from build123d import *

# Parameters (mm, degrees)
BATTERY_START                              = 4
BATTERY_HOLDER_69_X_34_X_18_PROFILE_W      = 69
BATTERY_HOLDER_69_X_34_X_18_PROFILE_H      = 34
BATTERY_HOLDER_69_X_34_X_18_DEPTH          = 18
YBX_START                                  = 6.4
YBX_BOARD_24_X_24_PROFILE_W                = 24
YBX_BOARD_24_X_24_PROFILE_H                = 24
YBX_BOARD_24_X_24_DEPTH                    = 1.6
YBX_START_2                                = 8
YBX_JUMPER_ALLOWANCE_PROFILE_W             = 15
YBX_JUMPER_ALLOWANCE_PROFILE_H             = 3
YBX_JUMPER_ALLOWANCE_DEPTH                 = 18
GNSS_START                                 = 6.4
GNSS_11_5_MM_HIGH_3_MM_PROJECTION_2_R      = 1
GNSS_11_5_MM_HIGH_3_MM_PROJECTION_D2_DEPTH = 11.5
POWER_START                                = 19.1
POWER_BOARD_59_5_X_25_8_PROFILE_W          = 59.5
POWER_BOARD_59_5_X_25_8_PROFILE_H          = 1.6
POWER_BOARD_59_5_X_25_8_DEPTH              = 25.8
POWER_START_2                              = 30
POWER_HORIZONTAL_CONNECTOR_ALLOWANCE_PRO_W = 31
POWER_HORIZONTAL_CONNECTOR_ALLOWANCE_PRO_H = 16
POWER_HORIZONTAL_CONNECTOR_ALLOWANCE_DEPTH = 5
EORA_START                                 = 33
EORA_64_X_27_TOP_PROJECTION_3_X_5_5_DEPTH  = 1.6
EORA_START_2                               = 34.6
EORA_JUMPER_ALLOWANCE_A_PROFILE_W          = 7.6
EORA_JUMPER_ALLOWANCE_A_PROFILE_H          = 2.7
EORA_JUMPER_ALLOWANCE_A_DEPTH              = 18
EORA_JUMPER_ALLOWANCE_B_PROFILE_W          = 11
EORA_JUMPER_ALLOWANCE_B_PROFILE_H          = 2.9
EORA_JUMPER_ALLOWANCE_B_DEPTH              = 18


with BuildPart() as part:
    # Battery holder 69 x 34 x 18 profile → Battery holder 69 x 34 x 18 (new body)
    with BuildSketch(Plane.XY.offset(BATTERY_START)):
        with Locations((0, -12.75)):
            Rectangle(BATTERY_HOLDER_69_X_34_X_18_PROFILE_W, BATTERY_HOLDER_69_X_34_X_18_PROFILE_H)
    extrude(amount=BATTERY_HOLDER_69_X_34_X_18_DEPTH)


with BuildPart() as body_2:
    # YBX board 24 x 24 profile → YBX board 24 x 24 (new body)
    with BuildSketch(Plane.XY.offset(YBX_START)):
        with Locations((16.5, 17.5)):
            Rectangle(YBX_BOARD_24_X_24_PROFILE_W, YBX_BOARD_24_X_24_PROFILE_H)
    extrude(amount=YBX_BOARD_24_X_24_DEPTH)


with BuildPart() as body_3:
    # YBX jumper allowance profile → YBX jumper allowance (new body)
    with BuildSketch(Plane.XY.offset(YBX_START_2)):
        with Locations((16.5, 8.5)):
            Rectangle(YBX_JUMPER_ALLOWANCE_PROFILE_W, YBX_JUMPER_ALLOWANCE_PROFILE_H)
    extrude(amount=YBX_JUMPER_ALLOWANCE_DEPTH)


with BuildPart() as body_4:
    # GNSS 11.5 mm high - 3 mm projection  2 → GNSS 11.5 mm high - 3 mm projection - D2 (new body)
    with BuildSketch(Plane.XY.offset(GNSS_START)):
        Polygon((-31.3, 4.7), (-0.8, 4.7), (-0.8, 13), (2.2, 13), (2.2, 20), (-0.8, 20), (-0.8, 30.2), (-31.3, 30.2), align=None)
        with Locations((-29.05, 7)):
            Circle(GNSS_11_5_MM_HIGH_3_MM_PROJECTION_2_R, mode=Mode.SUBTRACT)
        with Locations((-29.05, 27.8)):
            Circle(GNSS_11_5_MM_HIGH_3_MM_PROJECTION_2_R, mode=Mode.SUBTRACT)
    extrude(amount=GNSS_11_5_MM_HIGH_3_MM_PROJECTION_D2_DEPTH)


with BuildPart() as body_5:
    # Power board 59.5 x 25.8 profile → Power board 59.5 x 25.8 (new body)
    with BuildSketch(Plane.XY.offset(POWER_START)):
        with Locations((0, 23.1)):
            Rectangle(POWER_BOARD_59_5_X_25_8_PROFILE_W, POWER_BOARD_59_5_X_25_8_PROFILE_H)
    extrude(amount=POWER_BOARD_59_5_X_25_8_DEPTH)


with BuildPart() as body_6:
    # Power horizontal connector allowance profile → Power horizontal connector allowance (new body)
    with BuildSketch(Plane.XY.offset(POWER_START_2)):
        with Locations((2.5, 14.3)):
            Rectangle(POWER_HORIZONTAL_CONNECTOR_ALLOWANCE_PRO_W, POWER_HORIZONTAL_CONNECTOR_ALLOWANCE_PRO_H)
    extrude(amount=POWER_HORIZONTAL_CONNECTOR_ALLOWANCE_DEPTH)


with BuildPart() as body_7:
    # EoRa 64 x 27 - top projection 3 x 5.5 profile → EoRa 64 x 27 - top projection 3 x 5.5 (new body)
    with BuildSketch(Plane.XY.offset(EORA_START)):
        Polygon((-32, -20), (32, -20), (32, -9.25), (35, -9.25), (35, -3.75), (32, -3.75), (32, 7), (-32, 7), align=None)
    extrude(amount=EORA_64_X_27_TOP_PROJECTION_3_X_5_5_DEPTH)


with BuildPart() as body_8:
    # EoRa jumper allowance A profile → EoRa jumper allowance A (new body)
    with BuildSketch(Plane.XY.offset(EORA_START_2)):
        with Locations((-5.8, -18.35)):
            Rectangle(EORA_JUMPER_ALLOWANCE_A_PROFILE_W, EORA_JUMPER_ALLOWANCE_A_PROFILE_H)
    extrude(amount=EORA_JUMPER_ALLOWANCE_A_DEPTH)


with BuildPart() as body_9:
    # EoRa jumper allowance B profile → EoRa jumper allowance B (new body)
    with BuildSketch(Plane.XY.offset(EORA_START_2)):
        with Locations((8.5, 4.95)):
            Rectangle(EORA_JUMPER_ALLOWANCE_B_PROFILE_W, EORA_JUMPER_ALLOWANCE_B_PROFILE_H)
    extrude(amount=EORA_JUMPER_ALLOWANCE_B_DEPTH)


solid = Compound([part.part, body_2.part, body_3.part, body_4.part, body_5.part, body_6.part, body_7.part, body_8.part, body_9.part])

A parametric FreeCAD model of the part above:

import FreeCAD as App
import Part
import Sketcher

doc = App.newDocument("Part")
body = doc.addObject("PartDesign::Body", "Body")

# Sketch on XY plane
sketch1 = doc.addObject("Sketcher::SketchObject", "Sketch")
body.addObject(sketch1)
sketch1.AttachmentSupport = (doc.XY_Plane, [""])
sketch1.MapMode = "FlatFace"
sketch1.AttachmentOffset = App.Placement(App.Vector(0, 0, 4), App.Rotation())
sketch1.addGeometry([
    Part.LineSegment(App.Vector(-34, 4, 0), App.Vector(-34, -30, 0)),
    Part.LineSegment(App.Vector(-34, -30, 0), App.Vector(34, -30, 0)),
    Part.LineSegment(App.Vector(34, -30, 0), App.Vector(34, 4, 0)),
    Part.LineSegment(App.Vector(34, 4, 0), App.Vector(-34, 4, 0)),
], False)
sketch1.addConstraint([
    Sketcher.Constraint("Coincident", 0, 2, 1, 1),
    Sketcher.Constraint("Coincident", 1, 2, 2, 1),
    Sketcher.Constraint("Coincident", 2, 2, 3, 1),
    Sketcher.Constraint("Coincident", 3, 2, 0, 1),
    Sketcher.Constraint("Vertical", 0),
    Sketcher.Constraint("Horizontal", 1),
    Sketcher.Constraint("Vertical", 2),
    Sketcher.Constraint("Horizontal", 3),
    Sketcher.Constraint("DistanceX", 1, 1, 1, 2, 69.0),
    Sketcher.Constraint("DistanceY", 0, 2, 0, 1, 34.0),
    Sketcher.Constraint("DistanceX", 0, 2, -1, 1, 34.5),
    Sketcher.Constraint("DistanceY", 0, 2, -1, 1, 29.75),
])
pad1 = doc.addObject("PartDesign::Pad", "Pad")
body.addObject(pad1)
pad1.Profile = sketch1
pad1.Length = 18
body2 = doc.addObject("PartDesign::Body", "Body001")

# Sketch on XY plane
sketch2 = doc.addObject("Sketcher::SketchObject", "Sketch001")
body2.addObject(sketch2)
sketch2.AttachmentSupport = (doc.getObject("XY_Plane001"), [""])
sketch2.MapMode = "FlatFace"
sketch2.AttachmentOffset = App.Placement(App.Vector(0, 0, 6.4), App.Rotation())
sketch2.addGeometry([
    Part.LineSegment(App.Vector(4, 30, 0), App.Vector(4, 6, 0)),
    Part.LineSegment(App.Vector(4, 6, 0), App.Vector(28, 6, 0)),
    Part.LineSegment(App.Vector(28, 6, 0), App.Vector(28, 30, 0)),
    Part.LineSegment(App.Vector(28, 30, 0), App.Vector(4, 30, 0)),
], False)
sketch2.addConstraint([
    Sketcher.Constraint("Coincident", 0, 2, 1, 1),
    Sketcher.Constraint("Coincident", 1, 2, 2, 1),
    Sketcher.Constraint("Coincident", 2, 2, 3, 1),
    Sketcher.Constraint("Coincident", 3, 2, 0, 1),
    Sketcher.Constraint("Vertical", 0),
    Sketcher.Constraint("Horizontal", 1),
    Sketcher.Constraint("Vertical", 2),
    Sketcher.Constraint("Horizontal", 3),
    Sketcher.Constraint("Equal", 3, 0),
    Sketcher.Constraint("DistanceX", 1, 1, 1, 2, 24.0),
    Sketcher.Constraint("DistanceX", -1, 1, 0, 2, 4.5),
    Sketcher.Constraint("DistanceY", -1, 1, 0, 2, 5.5),
])
pad2 = doc.addObject("PartDesign::Pad", "Pad001")
body2.addObject(pad2)
pad2.Profile = sketch2
pad2.Length = 1.6
body3 = doc.addObject("PartDesign::Body", "Body002")

# Sketch on XY plane
sketch3 = doc.addObject("Sketcher::SketchObject", "Sketch002")
body3.addObject(sketch3)
sketch3.AttachmentSupport = (doc.getObject("XY_Plane002"), [""])
sketch3.MapMode = "FlatFace"
sketch3.AttachmentOffset = App.Placement(App.Vector(0, 0, 8), App.Rotation())
sketch3.addGeometry([
    Part.LineSegment(App.Vector(9, 10, 0), App.Vector(9, 7, 0)),
    Part.LineSegment(App.Vector(9, 7, 0), App.Vector(24, 7, 0)),
    Part.LineSegment(App.Vector(24, 7, 0), App.Vector(24, 10, 0)),
    Part.LineSegment(App.Vector(24, 10, 0), App.Vector(9, 10, 0)),
], False)
sketch3.addConstraint([
    Sketcher.Constraint("Coincident", 0, 2, 1, 1),
    Sketcher.Constraint("Coincident", 1, 2, 2, 1),
    Sketcher.Constraint("Coincident", 2, 2, 3, 1),
    Sketcher.Constraint("Coincident", 3, 2, 0, 1),
    Sketcher.Constraint("Vertical", 0),
    Sketcher.Constraint("Horizontal", 1),
    Sketcher.Constraint("Vertical", 2),
    Sketcher.Constraint("Horizontal", 3),
    Sketcher.Constraint("DistanceX", 1, 1, 1, 2, 15.0),
    Sketcher.Constraint("DistanceY", 0, 2, 0, 1, 3.0),
    Sketcher.Constraint("DistanceX", -1, 1, 0, 2, 9.0),
    Sketcher.Constraint("DistanceY", -1, 1, 0, 2, 7.0),
])
pad3 = doc.addObject("PartDesign::Pad", "Pad002")
body3.addObject(pad3)
pad3.Profile = sketch3
pad3.Length = 18
body4 = doc.addObject("PartDesign::Body", "Body003")

# Sketch on XY plane
sketch4 = doc.addObject("Sketcher::SketchObject", "Sketch003")
body4.addObject(sketch4)
sketch4.AttachmentSupport = (doc.getObject("XY_Plane003"), [""])
sketch4.MapMode = "FlatFace"
sketch4.AttachmentOffset = App.Placement(App.Vector(0, 0, 6.4), App.Rotation())
sketch4.addGeometry([
    Part.LineSegment(App.Vector(-31.3, 4.7, 0), App.Vector(-0.8, 4.7, 0)),  # 0
    Part.LineSegment(App.Vector(-0.8, 4.7, 0), App.Vector(-0.8, 13, 0)),  # 1
    Part.LineSegment(App.Vector(-0.8, 13, 0), App.Vector(2.2, 13, 0)),  # 2
    Part.LineSegment(App.Vector(2.2, 13, 0), App.Vector(2.2, 20, 0)),  # 3
    Part.LineSegment(App.Vector(2.2, 20, 0), App.Vector(-0.8, 20, 0)),  # 4
    Part.LineSegment(App.Vector(-0.8, 20, 0), App.Vector(-0.8, 30.2, 0)),  # 5
    Part.LineSegment(App.Vector(-0.8, 30.2, 0), App.Vector(-31.3, 30.2, 0)),  # 6
    Part.LineSegment(App.Vector(-31.3, 30.2, 0), App.Vector(-31.3, 4.7, 0)),  # 7
    Part.Circle(App.Vector(-29.1, 7, 0), App.Vector(0, 0, 1), 1),  # 8
    Part.Circle(App.Vector(-29.1, 27.8, 0), App.Vector(0, 0, 1), 1),  # 9
], False)
sketch4.addConstraint([
    Sketcher.Constraint("Coincident", 0, 2, 1, 1),
    Sketcher.Constraint("Coincident", 1, 2, 2, 1),
    Sketcher.Constraint("Coincident", 2, 2, 3, 1),
    Sketcher.Constraint("Coincident", 3, 2, 4, 1),
    Sketcher.Constraint("Coincident", 4, 2, 5, 1),
    Sketcher.Constraint("Coincident", 5, 2, 6, 1),
    Sketcher.Constraint("Coincident", 6, 2, 7, 1),
    Sketcher.Constraint("Coincident", 7, 2, 0, 1),
    Sketcher.Constraint("Horizontal", 0),
    Sketcher.Constraint("Vertical", 1),
    Sketcher.Constraint("Horizontal", 2),
    Sketcher.Constraint("Vertical", 3),
    Sketcher.Constraint("Horizontal", 4),
    Sketcher.Constraint("Vertical", 5),
    Sketcher.Constraint("Horizontal", 6),
    Sketcher.Constraint("Vertical", 7),
    Sketcher.Constraint("Equal", 8, 9),
    Sketcher.Constraint("Vertical", 8, 3, 9, 3),
    Sketcher.Constraint("Vertical", 1, 2, 4, 2),
    Sketcher.Constraint("Diameter", 8, 2.0),
    Sketcher.Constraint("DistanceX", 2, 1, 2, 2, 3.0),
    Sketcher.Constraint("DistanceY", 3, 1, 3, 2, 7.0),
    Sketcher.Constraint("DistanceX", 0, 1, 0, 2, 30.5),
    Sketcher.Constraint("DistanceY", 1, 1, 1, 2, 8.3),
    Sketcher.Constraint("DistanceY", 5, 1, 5, 2, 10.2),
    Sketcher.Constraint("DistanceY", -1, 1, 8, 3, 7.0),
    Sketcher.Constraint("DistanceY", -1, 1, 1, 2, 13.0),
    Sketcher.Constraint("DistanceY", -1, 1, 9, 3, 27.8),
    Sketcher.Constraint("DistanceX", 0, 2, -1, 1, 0.8),
    Sketcher.Constraint("DistanceX", 8, 3, -1, 1, 29.05),
])
pad4 = doc.addObject("PartDesign::Pad", "Pad003")
body4.addObject(pad4)
pad4.Profile = sketch4
pad4.Length = 11.5
body5 = doc.addObject("PartDesign::Body", "Body004")

# Sketch on XY plane
sketch5 = doc.addObject("Sketcher::SketchObject", "Sketch004")
body5.addObject(sketch5)
sketch5.AttachmentSupport = (doc.getObject("XY_Plane004"), [""])
sketch5.MapMode = "FlatFace"
sketch5.AttachmentOffset = App.Placement(App.Vector(0, 0, 19.1), App.Rotation())
sketch5.addGeometry([
    Part.LineSegment(App.Vector(-29.8, 23.9, 0), App.Vector(-29.8, 22.3, 0)),
    Part.LineSegment(App.Vector(-29.8, 22.3, 0), App.Vector(29.8, 22.3, 0)),
    Part.LineSegment(App.Vector(29.8, 22.3, 0), App.Vector(29.8, 23.9, 0)),
    Part.LineSegment(App.Vector(29.8, 23.9, 0), App.Vector(-29.8, 23.9, 0)),
], False)
sketch5.addConstraint([
    Sketcher.Constraint("Coincident", 0, 2, 1, 1),
    Sketcher.Constraint("Coincident", 1, 2, 2, 1),
    Sketcher.Constraint("Coincident", 2, 2, 3, 1),
    Sketcher.Constraint("Coincident", 3, 2, 0, 1),
    Sketcher.Constraint("Vertical", 0),
    Sketcher.Constraint("Horizontal", 1),
    Sketcher.Constraint("Vertical", 2),
    Sketcher.Constraint("Horizontal", 3),
    Sketcher.Constraint("DistanceX", 1, 1, 1, 2, 59.5),
    Sketcher.Constraint("DistanceY", 0, 2, 0, 1, 1.6),
    Sketcher.Constraint("DistanceY", -1, 1, 0, 2, 22.3),
    Sketcher.Constraint("DistanceX", 0, 2, -1, 1, 29.75),
])
pad5 = doc.addObject("PartDesign::Pad", "Pad004")
body5.addObject(pad5)
pad5.Profile = sketch5
pad5.Length = 25.8
body6 = doc.addObject("PartDesign::Body", "Body005")

# Sketch on XY plane
sketch6 = doc.addObject("Sketcher::SketchObject", "Sketch005")
body6.addObject(sketch6)
sketch6.AttachmentSupport = (doc.getObject("XY_Plane005"), [""])
sketch6.MapMode = "FlatFace"
sketch6.AttachmentOffset = App.Placement(App.Vector(0, 0, 30), App.Rotation())
sketch6.addGeometry([
    Part.LineSegment(App.Vector(-13, 22, 0), App.Vector(-13, 6, 0)),
    Part.LineSegment(App.Vector(-13, 6, 0), App.Vector(18, 6, 0)),
    Part.LineSegment(App.Vector(18, 6, 0), App.Vector(18, 22, 0)),
    Part.LineSegment(App.Vector(18, 22, 0), App.Vector(-13, 22, 0)),
], False)
sketch6.addConstraint([
    Sketcher.Constraint("Coincident", 0, 2, 1, 1),
    Sketcher.Constraint("Coincident", 1, 2, 2, 1),
    Sketcher.Constraint("Coincident", 2, 2, 3, 1),
    Sketcher.Constraint("Coincident", 3, 2, 0, 1),
    Sketcher.Constraint("Vertical", 0),
    Sketcher.Constraint("Horizontal", 1),
    Sketcher.Constraint("Vertical", 2),
    Sketcher.Constraint("Horizontal", 3),
    Sketcher.Constraint("DistanceX", 1, 1, 1, 2, 31.0),
    Sketcher.Constraint("DistanceY", 0, 2, 0, 1, 16.0),
    Sketcher.Constraint("DistanceX", 0, 2, -1, 1, 13.0),
    Sketcher.Constraint("DistanceY", -1, 1, 0, 2, 6.3),
])
pad6 = doc.addObject("PartDesign::Pad", "Pad005")
body6.addObject(pad6)
pad6.Profile = sketch6
pad6.Length = 5
body7 = doc.addObject("PartDesign::Body", "Body006")

# Sketch on XY plane
sketch7 = doc.addObject("Sketcher::SketchObject", "Sketch006")
body7.addObject(sketch7)
sketch7.AttachmentSupport = (doc.getObject("XY_Plane006"), [""])
sketch7.MapMode = "FlatFace"
sketch7.AttachmentOffset = App.Placement(App.Vector(0, 0, 33), App.Rotation())
sketch7.addGeometry([
    Part.LineSegment(App.Vector(-32, -20, 0), App.Vector(32, -20, 0)),  # 0
    Part.LineSegment(App.Vector(32, -20, 0), App.Vector(32, -9.2, 0)),  # 1
    Part.LineSegment(App.Vector(32, -9.2, 0), App.Vector(35, -9.2, 0)),  # 2
    Part.LineSegment(App.Vector(35, -9.2, 0), App.Vector(35, -3.8, 0)),  # 3
    Part.LineSegment(App.Vector(35, -3.8, 0), App.Vector(32, -3.8, 0)),  # 4
    Part.LineSegment(App.Vector(32, -3.8, 0), App.Vector(32, 7, 0)),  # 5
    Part.LineSegment(App.Vector(32, 7, 0), App.Vector(-32, 7, 0)),  # 6
    Part.LineSegment(App.Vector(-32, 7, 0), App.Vector(-32, -20, 0)),  # 7
], False)
sketch7.addConstraint([
    Sketcher.Constraint("Coincident", 0, 2, 1, 1),
    Sketcher.Constraint("Coincident", 1, 2, 2, 1),
    Sketcher.Constraint("Coincident", 2, 2, 3, 1),
    Sketcher.Constraint("Coincident", 3, 2, 4, 1),
    Sketcher.Constraint("Coincident", 4, 2, 5, 1),
    Sketcher.Constraint("Coincident", 5, 2, 6, 1),
    Sketcher.Constraint("Coincident", 6, 2, 7, 1),
    Sketcher.Constraint("Coincident", 7, 2, 0, 1),
    Sketcher.Constraint("Horizontal", 0),
    Sketcher.Constraint("Vertical", 1),
    Sketcher.Constraint("Horizontal", 2),
    Sketcher.Constraint("Vertical", 3),
    Sketcher.Constraint("Horizontal", 4),
    Sketcher.Constraint("Vertical", 5),
    Sketcher.Constraint("Horizontal", 6),
    Sketcher.Constraint("Vertical", 7),
    Sketcher.Constraint("Vertical", 1, 2, 4, 2),
    Sketcher.Constraint("Equal", 1, 5),
    Sketcher.Constraint("DistanceX", 0, 1, 0, 2, 64.0),
    Sketcher.Constraint("DistanceX", 2, 1, 2, 2, 3.0),
    Sketcher.Constraint("DistanceY", 7, 2, 7, 1, 27.0),
    Sketcher.Constraint("DistanceY", 3, 1, 3, 2, 5.5),
    Sketcher.Constraint("DistanceX", -1, 1, 0, 2, 32.0),
    Sketcher.Constraint("DistanceY", 0, 2, -1, 1, 20.0),
])
pad7 = doc.addObject("PartDesign::Pad", "Pad006")
body7.addObject(pad7)
pad7.Profile = sketch7
pad7.Length = 1.6
body8 = doc.addObject("PartDesign::Body", "Body007")

# Sketch on XY plane
sketch8 = doc.addObject("Sketcher::SketchObject", "Sketch007")
body8.addObject(sketch8)
sketch8.AttachmentSupport = (doc.getObject("XY_Plane007"), [""])
sketch8.MapMode = "FlatFace"
sketch8.AttachmentOffset = App.Placement(App.Vector(0, 0, 34.6), App.Rotation())
sketch8.addGeometry([
    Part.LineSegment(App.Vector(-9.6, -17, 0), App.Vector(-9.6, -19.7, 0)),
    Part.LineSegment(App.Vector(-9.6, -19.7, 0), App.Vector(-2, -19.7, 0)),
    Part.LineSegment(App.Vector(-2, -19.7, 0), App.Vector(-2, -17, 0)),
    Part.LineSegment(App.Vector(-2, -17, 0), App.Vector(-9.6, -17, 0)),
], False)
sketch8.addConstraint([
    Sketcher.Constraint("Coincident", 0, 2, 1, 1),
    Sketcher.Constraint("Coincident", 1, 2, 2, 1),
    Sketcher.Constraint("Coincident", 2, 2, 3, 1),
    Sketcher.Constraint("Coincident", 3, 2, 0, 1),
    Sketcher.Constraint("Vertical", 0),
    Sketcher.Constraint("Horizontal", 1),
    Sketcher.Constraint("Vertical", 2),
    Sketcher.Constraint("Horizontal", 3),
    Sketcher.Constraint("DistanceX", 1, 1, 1, 2, 7.6),
    Sketcher.Constraint("DistanceY", 0, 2, 0, 1, 2.7),
    Sketcher.Constraint("DistanceX", 1, 2, -1, 1, 2.0),
    Sketcher.Constraint("DistanceY", 2, 2, -1, 1, 17.0),
])
pad8 = doc.addObject("PartDesign::Pad", "Pad007")
body8.addObject(pad8)
pad8.Profile = sketch8
pad8.Length = 18
body9 = doc.addObject("PartDesign::Body", "Body008")

# Sketch on XY plane
sketch9 = doc.addObject("Sketcher::SketchObject", "Sketch008")
body9.addObject(sketch9)
sketch9.AttachmentSupport = (doc.getObject("XY_Plane008"), [""])
sketch9.MapMode = "FlatFace"
sketch9.AttachmentOffset = App.Placement(App.Vector(0, 0, 34.6), App.Rotation())
sketch9.addGeometry([
    Part.LineSegment(App.Vector(3, 6.4, 0), App.Vector(3, 3.5, 0)),
    Part.LineSegment(App.Vector(3, 3.5, 0), App.Vector(14, 3.5, 0)),
    Part.LineSegment(App.Vector(14, 3.5, 0), App.Vector(14, 6.4, 0)),
    Part.LineSegment(App.Vector(14, 6.4, 0), App.Vector(3, 6.4, 0)),
], False)
sketch9.addConstraint([
    Sketcher.Constraint("Coincident", 0, 2, 1, 1),
    Sketcher.Constraint("Coincident", 1, 2, 2, 1),
    Sketcher.Constraint("Coincident", 2, 2, 3, 1),
    Sketcher.Constraint("Coincident", 3, 2, 0, 1),
    Sketcher.Constraint("Vertical", 0),
    Sketcher.Constraint("Horizontal", 1),
    Sketcher.Constraint("Vertical", 2),
    Sketcher.Constraint("Horizontal", 3),
    Sketcher.Constraint("DistanceX", 1, 1, 1, 2, 11.0),
    Sketcher.Constraint("DistanceY", 0, 2, 0, 1, 2.9),
    Sketcher.Constraint("DistanceX", -1, 1, 0, 2, 3.0),
    Sketcher.Constraint("DistanceY", -1, 1, 0, 2, 3.5),
])
pad9 = doc.addObject("PartDesign::Pad", "Pad008")
body9.addObject(pad9)
pad9.Profile = sketch9
pad9.Length = 18

doc.recompute()
